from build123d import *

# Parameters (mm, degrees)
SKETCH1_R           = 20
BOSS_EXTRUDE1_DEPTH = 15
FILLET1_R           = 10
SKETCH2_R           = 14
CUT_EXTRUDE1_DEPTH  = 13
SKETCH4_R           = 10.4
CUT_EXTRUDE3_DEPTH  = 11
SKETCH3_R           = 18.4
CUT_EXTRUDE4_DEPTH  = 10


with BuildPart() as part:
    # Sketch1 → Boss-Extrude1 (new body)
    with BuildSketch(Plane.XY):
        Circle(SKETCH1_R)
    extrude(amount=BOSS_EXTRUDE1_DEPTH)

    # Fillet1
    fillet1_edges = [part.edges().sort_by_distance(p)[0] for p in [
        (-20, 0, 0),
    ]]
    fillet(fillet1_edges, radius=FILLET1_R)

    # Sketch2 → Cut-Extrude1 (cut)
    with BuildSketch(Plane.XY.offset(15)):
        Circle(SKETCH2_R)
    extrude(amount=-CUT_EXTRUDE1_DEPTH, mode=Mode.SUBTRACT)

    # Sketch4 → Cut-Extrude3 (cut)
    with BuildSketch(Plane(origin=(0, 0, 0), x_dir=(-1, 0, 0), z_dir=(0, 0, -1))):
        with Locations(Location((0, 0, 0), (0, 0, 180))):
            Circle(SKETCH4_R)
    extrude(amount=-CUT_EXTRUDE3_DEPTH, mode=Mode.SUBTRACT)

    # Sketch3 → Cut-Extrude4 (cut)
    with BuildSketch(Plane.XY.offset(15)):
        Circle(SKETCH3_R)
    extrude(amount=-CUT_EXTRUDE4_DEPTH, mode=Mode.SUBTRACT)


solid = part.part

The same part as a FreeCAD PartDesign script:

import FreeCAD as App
import Part
import Sketcher

V = App.Vector
Q = App.Units.Quantity


def edges_at(feature, points):
    """Names of the edges that pass closest to the given points."""
    edges = feature.Shape.Edges
    near = lambda p: min(range(len(edges)), key=lambda i: edges[i].distToShape(Part.Vertex(*p))[0])
    return sorted({f"Edge{near(p) + 1}" for p in points})

doc = App.newDocument("Part")
body = doc.addObject("PartDesign::Body", "Body")

# Sketch on XY plane
sketch1 = body.newObject("Sketcher::SketchObject", "Sketch")
sketch1.AttachmentSupport = (doc.getObject("XY_Plane"), [""])
sketch1.MapMode = "FlatFace"
sketch1.addGeometry(Part.Circle(V(0, 0, 0), V(0, 0, 1), 20), False)
sketch1.addConstraint([
    Sketcher.Constraint("Coincident", 0, 3, -1, 1),
    Sketcher.Constraint("Diameter", 0, Q("40 mm")),
])
pad1 = body.newObject("PartDesign::Pad", "Pad")
pad1.Profile = sketch1
pad1.Length = 15
doc.recompute()

fillet = body.newObject("PartDesign::Fillet", "Fillet")
fillet.Base = (pad1, edges_at(pad1, [(-20, 0, 0)]))
fillet.Radius = 10

# Sketch on XY plane
sketch2 = body.newObject("Sketcher::SketchObject", "Sketch001")
sketch2.AttachmentSupport = (doc.getObject("XY_Plane"), [""])
sketch2.MapMode = "FlatFace"
sketch2.AttachmentOffset = App.Placement(V(0, 0, 15), App.Rotation())
sketch2.addGeometry(Part.Circle(V(0, 0, 0), V(0, 0, 1), 14), False)
sketch2.addConstraint([
    Sketcher.Constraint("Coincident", 0, 3, -1, 1),
    Sketcher.Constraint("Diameter", 0, Q("28 mm")),
])
pocket1 = body.newObject("PartDesign::Pocket", "Pocket")
pocket1.Profile = sketch2
pocket1.Length = 13

# Sketch on XY plane
sketch3 = body.newObject("Sketcher::SketchObject", "Sketch002")
sketch3.AttachmentSupport = (doc.getObject("XY_Plane"), [""])
sketch3.MapMode = "FlatFace"
sketch3.addGeometry(Part.Circle(V(0, 0, 0), V(0, 0, 1), 10.4), False)
sketch3.addConstraint([
    Sketcher.Constraint("Coincident", 0, 3, -1, 1),
    Sketcher.Constraint("Diameter", 0, Q("20.8 mm")),
])
pocket2 = body.newObject("PartDesign::Pocket", "Pocket001")
pocket2.Profile = sketch3
pocket2.Length = 11
pocket2.Reversed = True

# Sketch on XY plane
sketch4 = body.newObject("Sketcher::SketchObject", "Sketch003")
sketch4.AttachmentSupport = (doc.getObject("XY_Plane"), [""])
sketch4.MapMode = "FlatFace"
sketch4.AttachmentOffset = App.Placement(V(0, 0, 15), App.Rotation())
sketch4.addGeometry(Part.Circle(V(0, 0, 0), V(0, 0, 1), 18.4), False)
sketch4.addConstraint([
    Sketcher.Constraint("Coincident", 0, 3, -1, 1),
    Sketcher.Constraint("Diameter", 0, Q("36.8 mm")),
])
pocket3 = body.newObject("PartDesign::Pocket", "Pocket002")
pocket3.Profile = sketch4
pocket3.Length = 10

doc.recompute()
